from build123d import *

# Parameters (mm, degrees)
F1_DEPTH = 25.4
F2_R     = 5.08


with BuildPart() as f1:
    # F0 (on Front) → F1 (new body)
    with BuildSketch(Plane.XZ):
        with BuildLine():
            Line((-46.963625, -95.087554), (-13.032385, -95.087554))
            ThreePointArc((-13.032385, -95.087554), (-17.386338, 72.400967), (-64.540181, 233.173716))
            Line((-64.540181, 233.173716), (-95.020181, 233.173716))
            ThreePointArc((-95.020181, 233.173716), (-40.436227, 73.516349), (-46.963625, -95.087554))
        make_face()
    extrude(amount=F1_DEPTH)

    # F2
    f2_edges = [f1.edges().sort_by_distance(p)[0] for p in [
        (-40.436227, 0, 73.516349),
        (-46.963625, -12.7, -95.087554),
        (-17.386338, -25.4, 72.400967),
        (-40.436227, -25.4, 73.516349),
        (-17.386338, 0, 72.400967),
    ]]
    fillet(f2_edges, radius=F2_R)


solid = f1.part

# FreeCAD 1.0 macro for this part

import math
import FreeCAD as App
import Part
import Sketcher

V = App.Vector
Q = App.Units.Quantity


def edges_at(feature, points):
    """Names of the edges that pass closest to the given points."""
    edges = feature.Shape.Edges
    near = lambda p: min(range(len(edges)), key=lambda i: edges[i].distToShape(Part.Vertex(*p))[0])
    return sorted({f"Edge{near(p) + 1}" for p in points})

doc = App.newDocument("Part")
params = doc.addObject("Spreadsheet::Sheet", "Params")
for row, (alias, value) in enumerate([
    ("sketch1_width", "1.2 in"),
    ("pad1_length", "1 in"),
    ("fillet_radius", "0.2 in"),
], start=1):
    params.set(f"A{row}", alias)
    params.set(f"B{row}", "=" + value)
    params.setAlias(f"B{row}", alias)

body = doc.addObject("PartDesign::Body", "Body")

sketch1 = body.newObject("Sketcher::SketchObject", "Sketch")
sketch1.AttachmentSupport = (doc.getObject("XZ_Plane"), [""])
sketch1.MapMode = "FlatFace"
sketch1.addGeometry([
    Part.LineSegment(V(-47, -95, 0), V(-13, -95, 0)),
    Part.ArcOfCircle(Part.Circle(V(-658, -28, 0), V(0, 0, 1), 648), math.radians(-6), math.radians(24)),
    Part.LineSegment(V(-65, 233, 0), V(-95, 233, 0)),
    Part.ArcOfCircle(Part.Circle(V(-497, 7, 0), V(0, 0, 1), 461), math.radians(-13), math.radians(29)),
], False)
sketch1.addConstraint([
    Sketcher.Constraint("Coincident", 0, 2, 1, 1),
    Sketcher.Constraint("Coincident", 1, 2, 2, 1),
    Sketcher.Constraint("Coincident", 2, 2, 3, 2),
    Sketcher.Constraint("Coincident", 3, 1, 0, 1),
    Sketcher.Constraint("Horizontal", 0),
    Sketcher.Constraint("Horizontal", 2),
    Sketcher.Constraint("DistanceX", 2, 2, 2, 1, Q("1.2 in")),
    Sketcher.Constraint("Radius", 1, 647.946561),
    Sketcher.Constraint("Radius", 3, 460.955525),
    Sketcher.Constraint("DistanceX", 0, 1, 0, 2, 33.93124),
    Sketcher.Constraint("DistanceY", 0, 2, 3, 3, 101.832998),
    Sketcher.Constraint("DistanceX", 1, 3, -1, 1, 657.500671),
    Sketcher.Constraint("DistanceX", 2, 2, -1, 1, 95.020181),
    Sketcher.Constraint("DistanceY", 1, 3, -1, 1, 28.039997),
])
sketch1.setExpression("Constraints[6]", "Params.sketch1_width")
pad1 = body.newObject("PartDesign::Pad", "Pad")
pad1.Profile = sketch1
pad1.setExpression("Length", "Params.pad1_length")
doc.recompute()

fillet = body.newObject("PartDesign::Fillet", "Fillet")
fillet.Base = (pad1, edges_at(pad1, [
    (-40.436, 0, 73.516),
    (-46.964, -12.7, -95.088),
    (-17.386, -25.4, 72.401),
    (-40.436, -25.4, 73.516),
    (-17.386, 0, 72.401),
]))
fillet.setExpression("Radius", "Params.fillet_radius")

doc.recompute()
